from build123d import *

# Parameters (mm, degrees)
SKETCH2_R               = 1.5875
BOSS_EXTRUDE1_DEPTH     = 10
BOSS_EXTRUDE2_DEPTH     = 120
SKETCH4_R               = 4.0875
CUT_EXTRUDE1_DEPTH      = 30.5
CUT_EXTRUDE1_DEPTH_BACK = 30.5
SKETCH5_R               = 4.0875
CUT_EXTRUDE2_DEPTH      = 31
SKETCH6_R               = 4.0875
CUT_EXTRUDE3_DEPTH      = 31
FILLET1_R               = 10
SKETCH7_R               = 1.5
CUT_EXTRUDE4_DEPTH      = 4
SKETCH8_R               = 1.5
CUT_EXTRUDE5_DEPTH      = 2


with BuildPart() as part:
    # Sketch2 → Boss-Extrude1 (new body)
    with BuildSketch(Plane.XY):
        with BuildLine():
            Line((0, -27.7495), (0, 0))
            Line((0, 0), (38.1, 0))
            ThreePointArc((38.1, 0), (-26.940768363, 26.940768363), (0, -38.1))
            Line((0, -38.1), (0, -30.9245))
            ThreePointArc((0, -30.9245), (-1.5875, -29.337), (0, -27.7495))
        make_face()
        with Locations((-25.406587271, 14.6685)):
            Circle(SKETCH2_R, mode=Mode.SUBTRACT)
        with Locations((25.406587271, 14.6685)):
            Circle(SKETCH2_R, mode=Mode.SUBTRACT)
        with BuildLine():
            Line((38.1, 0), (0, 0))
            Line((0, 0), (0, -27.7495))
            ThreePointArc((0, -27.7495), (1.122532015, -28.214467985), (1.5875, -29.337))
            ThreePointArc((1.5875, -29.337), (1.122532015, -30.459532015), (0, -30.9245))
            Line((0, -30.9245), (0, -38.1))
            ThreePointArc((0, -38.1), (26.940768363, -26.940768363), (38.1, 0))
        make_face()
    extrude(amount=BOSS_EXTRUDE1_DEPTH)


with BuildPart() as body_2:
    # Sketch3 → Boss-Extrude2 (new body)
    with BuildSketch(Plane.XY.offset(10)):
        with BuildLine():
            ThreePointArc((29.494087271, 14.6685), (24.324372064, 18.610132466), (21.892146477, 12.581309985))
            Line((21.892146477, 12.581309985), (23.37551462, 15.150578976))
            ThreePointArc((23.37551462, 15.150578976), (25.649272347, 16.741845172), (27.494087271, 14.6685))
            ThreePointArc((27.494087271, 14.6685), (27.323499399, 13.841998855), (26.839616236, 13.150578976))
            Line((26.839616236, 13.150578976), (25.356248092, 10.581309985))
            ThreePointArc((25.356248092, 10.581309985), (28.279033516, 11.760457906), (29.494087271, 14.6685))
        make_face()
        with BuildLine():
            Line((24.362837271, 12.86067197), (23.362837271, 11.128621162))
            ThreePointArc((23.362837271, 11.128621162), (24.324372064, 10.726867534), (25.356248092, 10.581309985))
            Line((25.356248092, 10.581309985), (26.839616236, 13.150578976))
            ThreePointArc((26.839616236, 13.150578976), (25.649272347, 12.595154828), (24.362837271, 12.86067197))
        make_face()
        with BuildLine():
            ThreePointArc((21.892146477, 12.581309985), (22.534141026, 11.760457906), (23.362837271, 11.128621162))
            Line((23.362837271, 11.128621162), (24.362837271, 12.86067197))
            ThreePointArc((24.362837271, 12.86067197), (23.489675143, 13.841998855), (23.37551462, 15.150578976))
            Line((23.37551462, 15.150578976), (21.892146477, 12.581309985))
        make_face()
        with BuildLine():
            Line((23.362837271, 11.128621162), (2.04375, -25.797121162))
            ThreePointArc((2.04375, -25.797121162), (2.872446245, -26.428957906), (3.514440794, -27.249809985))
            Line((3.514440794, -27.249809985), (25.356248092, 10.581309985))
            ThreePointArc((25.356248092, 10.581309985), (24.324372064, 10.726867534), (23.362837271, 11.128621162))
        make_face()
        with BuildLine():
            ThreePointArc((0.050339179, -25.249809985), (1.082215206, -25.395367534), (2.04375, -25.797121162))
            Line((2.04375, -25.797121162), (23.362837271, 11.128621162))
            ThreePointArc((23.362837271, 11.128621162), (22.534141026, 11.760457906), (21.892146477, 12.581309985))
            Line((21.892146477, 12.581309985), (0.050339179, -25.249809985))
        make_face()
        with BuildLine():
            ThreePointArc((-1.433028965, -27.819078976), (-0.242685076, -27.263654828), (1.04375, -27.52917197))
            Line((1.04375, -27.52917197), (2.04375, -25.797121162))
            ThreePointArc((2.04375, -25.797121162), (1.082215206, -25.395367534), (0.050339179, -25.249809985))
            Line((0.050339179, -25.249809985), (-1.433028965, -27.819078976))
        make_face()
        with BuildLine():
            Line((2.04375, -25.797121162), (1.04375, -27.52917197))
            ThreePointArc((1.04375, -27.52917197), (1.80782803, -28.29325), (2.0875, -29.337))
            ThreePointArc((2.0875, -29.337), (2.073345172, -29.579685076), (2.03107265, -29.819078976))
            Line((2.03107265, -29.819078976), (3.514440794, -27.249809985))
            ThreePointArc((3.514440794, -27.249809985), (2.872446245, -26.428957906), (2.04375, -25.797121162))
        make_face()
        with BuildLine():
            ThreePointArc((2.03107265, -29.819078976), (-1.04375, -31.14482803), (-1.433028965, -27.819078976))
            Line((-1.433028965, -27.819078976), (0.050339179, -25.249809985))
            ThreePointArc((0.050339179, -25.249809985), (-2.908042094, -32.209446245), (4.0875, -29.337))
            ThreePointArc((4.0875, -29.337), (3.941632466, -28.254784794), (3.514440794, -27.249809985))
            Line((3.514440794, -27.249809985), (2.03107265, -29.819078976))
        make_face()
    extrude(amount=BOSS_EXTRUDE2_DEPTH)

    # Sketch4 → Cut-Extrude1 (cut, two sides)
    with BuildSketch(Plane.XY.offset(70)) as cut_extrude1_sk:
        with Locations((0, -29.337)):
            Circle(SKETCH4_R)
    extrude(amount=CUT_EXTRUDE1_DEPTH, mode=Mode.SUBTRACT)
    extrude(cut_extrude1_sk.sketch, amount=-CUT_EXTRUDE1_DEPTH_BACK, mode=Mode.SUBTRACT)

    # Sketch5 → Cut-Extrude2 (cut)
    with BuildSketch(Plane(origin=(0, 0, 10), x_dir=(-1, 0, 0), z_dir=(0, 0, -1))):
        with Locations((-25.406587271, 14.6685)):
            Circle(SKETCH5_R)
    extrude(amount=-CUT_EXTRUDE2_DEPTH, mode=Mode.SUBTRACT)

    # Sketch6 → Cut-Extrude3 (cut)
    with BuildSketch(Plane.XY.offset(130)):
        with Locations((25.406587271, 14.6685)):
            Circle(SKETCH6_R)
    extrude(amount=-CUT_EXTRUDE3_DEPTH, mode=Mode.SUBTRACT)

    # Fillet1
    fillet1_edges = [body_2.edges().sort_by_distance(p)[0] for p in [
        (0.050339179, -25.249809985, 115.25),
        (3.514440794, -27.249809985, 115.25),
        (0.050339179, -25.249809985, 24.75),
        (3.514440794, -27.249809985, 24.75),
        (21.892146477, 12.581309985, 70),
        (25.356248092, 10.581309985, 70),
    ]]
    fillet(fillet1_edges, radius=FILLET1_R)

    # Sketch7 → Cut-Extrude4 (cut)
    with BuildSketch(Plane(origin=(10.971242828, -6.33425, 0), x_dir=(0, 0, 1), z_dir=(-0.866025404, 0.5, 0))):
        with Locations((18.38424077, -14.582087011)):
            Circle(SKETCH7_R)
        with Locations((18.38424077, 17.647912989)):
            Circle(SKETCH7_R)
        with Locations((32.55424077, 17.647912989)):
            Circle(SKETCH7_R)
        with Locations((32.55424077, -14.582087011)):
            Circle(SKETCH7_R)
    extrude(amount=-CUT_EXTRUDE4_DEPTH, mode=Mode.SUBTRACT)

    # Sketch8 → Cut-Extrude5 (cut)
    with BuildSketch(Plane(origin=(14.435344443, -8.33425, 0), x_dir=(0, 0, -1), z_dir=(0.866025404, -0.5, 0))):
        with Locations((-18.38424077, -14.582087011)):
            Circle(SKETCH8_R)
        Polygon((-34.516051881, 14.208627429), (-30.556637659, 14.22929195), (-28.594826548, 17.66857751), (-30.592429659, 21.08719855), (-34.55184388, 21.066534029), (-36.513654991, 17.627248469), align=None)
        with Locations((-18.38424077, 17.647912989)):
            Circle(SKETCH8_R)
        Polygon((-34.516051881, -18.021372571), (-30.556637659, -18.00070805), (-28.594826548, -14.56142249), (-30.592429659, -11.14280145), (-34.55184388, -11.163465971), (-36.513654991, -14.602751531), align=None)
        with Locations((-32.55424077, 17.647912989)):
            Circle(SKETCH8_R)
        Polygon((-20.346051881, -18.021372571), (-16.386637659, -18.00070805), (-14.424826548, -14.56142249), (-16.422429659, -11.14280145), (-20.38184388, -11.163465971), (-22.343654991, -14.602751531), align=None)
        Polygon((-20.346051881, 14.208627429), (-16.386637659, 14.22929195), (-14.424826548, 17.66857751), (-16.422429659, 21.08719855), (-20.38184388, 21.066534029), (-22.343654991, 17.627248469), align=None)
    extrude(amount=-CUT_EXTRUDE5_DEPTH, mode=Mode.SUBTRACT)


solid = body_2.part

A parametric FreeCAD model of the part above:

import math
import FreeCAD as App
import Part
import Sketcher
Q = App.Units.Quantity


def edges_at(feature, points):
    """Names of the edges that pass closest to the given points."""
    edges = feature.Shape.Edges
    near = lambda p: min(range(len(edges)), key=lambda i: edges[i].distToShape(Part.Vertex(*p))[0])
    return sorted({f"Edge{near(p) + 1}" for p in points})

doc = App.newDocument("Part")
body = doc.addObject("PartDesign::Body", "Body")

sketch1 = doc.addObject("Sketcher::SketchObject", "Sketch")
body.addObject(sketch1)
sketch1.AttachmentSupport = (doc.XY_Plane, [""])
sketch1.MapMode = "FlatFace"
sketch1.addGeometry([
    Part.ArcOfCircle(Part.Circle(App.Vector(0, 0, 0), App.Vector(0, 0, 1), 38.1), math.radians(0), math.radians(270)),
    Part.ArcOfCircle(Part.Circle(App.Vector(0, 0, 0), App.Vector(0, 0, 1), 38.1), math.radians(-90), math.radians(0)),
    Part.ArcOfCircle(Part.Circle(App.Vector(0, -29.3, 0), App.Vector(0, 0, 1), 1.6), math.radians(90), math.radians(270)),
    Part.ArcOfCircle(Part.Circle(App.Vector(0, -29.3, 0), App.Vector(0, 0, 1), 1.6), math.radians(0), math.radians(90)),
    Part.ArcOfCircle(Part.Circle(App.Vector(0, -29.3, 0), App.Vector(0, 0, 1), 1.6), math.radians(-90), math.radians(0)),
    Part.Circle(App.Vector(-25.4, 14.7, 0), App.Vector(0, 0, 1), 1.6),
    Part.Circle(App.Vector(25.4, 14.7, 0), App.Vector(0, 0, 1), 1.6),
], False)
sketch1.addConstraint([
    Sketcher.Constraint("Tangent", 0, 1, 1, 2),
    Sketcher.Constraint("Coincident", 1, 1, 0, 2),
    Sketcher.Constraint("Tangent", 2, 1, 3, 2),
    Sketcher.Constraint("Tangent", 3, 1, 4, 2),
    Sketcher.Constraint("Tangent", 4, 1, 2, 2),
    Sketcher.Constraint("Coincident", 0, 3, -1, 1),
    Sketcher.Constraint("Equal", 4, 5),
    Sketcher.Constraint("Equal", 5, 6),
    Sketcher.Constraint("Symmetric", 5, 3, 6, 3, -2),
    Sketcher.Constraint("PointOnObject", 2, 3, -2),
    Sketcher.Constraint("PointOnObject", 0, 1, -1),
    Sketcher.Constraint("PointOnObject", 1, 1, -2),
    Sketcher.Constraint("PointOnObject", 2, 1, -2),
    Sketcher.Constraint("PointOnObject", 4, 1, -2),
    Sketcher.Constraint("Horizontal", 4, 3, 3, 1),
    Sketcher.Constraint("Radius", 0, Q("38.1 mm")),
    Sketcher.Constraint("Diameter", 5, Q("3.175 mm")),
    Sketcher.Constraint("DistanceY", 2, 3, -1, 1, Q("29.337 mm")),
    Sketcher.Constraint("DistanceY", -1, 1, 5, 3, Q("14.6685 mm")),
    Sketcher.Constraint("DistanceX", 5, 3, -1, 1, Q("25.406587 mm")),
])
pad1 = doc.addObject("PartDesign::Pad", "Pad")
body.addObject(pad1)
pad1.Profile = sketch1
pad1.Length = 10
body2 = doc.addObject("PartDesign::Body", "Body001")

sketch2 = doc.addObject("Sketcher::SketchObject", "Sketch001")
body2.addObject(sketch2)
sketch2.AttachmentSupport = (doc.getObject("XY_Plane001"), [""])
sketch2.MapMode = "FlatFace"
sketch2.AttachmentOffset = App.Placement(App.Vector(0, 0, 10), App.Rotation())
sketch2.addGeometry([
    Part.ArcOfCircle(Part.Circle(App.Vector(25.41, 14.67, 0), App.Vector(0, 0, 1), 4.09), math.radians(0), math.radians(211)),
    Part.LineSegment(App.Vector(21.89, 12.58, 0), App.Vector(0.05, -25.25, 0)),
    Part.ArcOfCircle(Part.Circle(App.Vector(0, -29.34, 0), App.Vector(0, 0, 1), 4.09), math.radians(89), math.radians(360)),
    Part.ArcOfCircle(Part.Circle(App.Vector(0, -29.34, 0), App.Vector(0, 0, 1), 4.09), math.radians(0), math.radians(31)),
    Part.LineSegment(App.Vector(3.51, -27.25, 0), App.Vector(25.36, 10.58, 0)),
    Part.ArcOfCircle(Part.Circle(App.Vector(25.41, 14.67, 0), App.Vector(0, 0, 1), 4.09), math.radians(-91), math.radians(0)),
    Part.ArcOfCircle(Part.Circle(App.Vector(0, -29.34, 0), App.Vector(0, 0, 1), 2.09), math.radians(60), math.radians(133)),
    Part.ArcOfCircle(Part.Circle(App.Vector(0, -29.34, 0), App.Vector(0, 0, 1), 2.09), math.radians(0), math.radians(60)),
    Part.ArcOfCircle(Part.Circle(App.Vector(0, -29.34, 0), App.Vector(0, 0, 1), 2.09), math.radians(-13.35), math.radians(0)),
    Part.ArcOfCircle(Part.Circle(App.Vector(0, -29.34, 0), App.Vector(0, 0, 1), 2.09), math.radians(133), math.radians(347)),
    Part.ArcOfCircle(Part.Circle(App.Vector(25.41, 14.67, 0), App.Vector(0, 0, 1), 2.09), math.radians(0), math.radians(167)),
    Part.ArcOfCircle(Part.Circle(App.Vector(25.41, 14.67, 0), App.Vector(0, 0, 1), 2.09), math.radians(-47), math.radians(0)),
    Part.ArcOfCircle(Part.Circle(App.Vector(25.41, 14.67, 0), App.Vector(0, 0, 1), 2.09), math.radians(-120), math.radians(-47)),
    Part.ArcOfCircle(Part.Circle(App.Vector(25.41, 14.67, 0), App.Vector(0, 0, 1), 2.09), math.radians(167), math.radians(240)),
], False)
sketch2.addConstraint([
    Sketcher.Constraint("Coincident", 0, 2, 1, 1),
    Sketcher.Constraint("Coincident", 1, 2, 2, 1),
    Sketcher.Constraint("Tangent", 2, 2, 3, 1),
    Sketcher.Constraint("Coincident", 3, 2, 4, 1),
    Sketcher.Constraint("Coincident", 4, 2, 5, 1),
    Sketcher.Constraint("Tangent", 5, 2, 0, 1),
    Sketcher.Constraint("Tangent", 6, 1, 7, 2),
    Sketcher.Constraint("Tangent", 7, 1, 8, 2),
    Sketcher.Constraint("Tangent", 8, 1, 9, 2),
    Sketcher.Constraint("Tangent", 9, 1, 6, 2),
    Sketcher.Constraint("Tangent", 10, 1, 11, 2),
    Sketcher.Constraint("Tangent", 11, 1, 12, 2),
    Sketcher.Constraint("Tangent", 12, 1, 13, 2),
    Sketcher.Constraint("Tangent", 13, 1, 10, 2),
    Sketcher.Constraint("Coincident", 6, 3, 2, 3),
    Sketcher.Constraint("Coincident", 10, 3, 0, 3),
    Sketcher.Constraint("Equal", 0, 2),
    Sketcher.Constraint("Equal", 2, 3),
    Sketcher.Constraint("Equal", 3, 5),
    Sketcher.Constraint("Equal", 6, 7),
    Sketcher.Constraint("Equal", 9, 10),
    Sketcher.Constraint("Equal", 10, 11),
    Sketcher.Constraint("PointOnObject", 2, 3, -2),
    Sketcher.Constraint("Parallel", 1, 4),
    Sketcher.Constraint("Horizontal", 9, 3, 2, 2),
    Sketcher.Constraint("Horizontal", 13, 3, 5, 2),
    Sketcher.Constraint("Horizontal", 2, 2, 7, 1),
    Sketcher.Constraint("Horizontal", 5, 2, 10, 1),
    Sketcher.Constraint("Equal", 1, 4),
    Sketcher.Constraint("Angle", 1, Q("-120 deg")),
    Sketcher.Constraint("DistanceY", 3, 2, 1, 2, Q("2 mm")),
    Sketcher.Constraint("DistanceX", 7, 1, 2, 2, Q("2 mm")),
    Sketcher.Constraint("Radius", 0, Q("4.0875 mm")),
    Sketcher.Constraint("DistanceY", 2, 3, -1, 1, Q("29.337 mm")),
    Sketcher.Constraint("DistanceY", -1, 1, 0, 3, Q("14.6685 mm")),
    Sketcher.Constraint("DistanceX", 1, 2, 3, 2, Q("3.464102 mm")),
    Sketcher.Constraint("DistanceX", -1, 1, 6, 1, Q("1.04375 mm")),
    Sketcher.Constraint("DistanceY", 8, 1, -1, 1, Q("29.819079 mm")),
    Sketcher.Constraint("DistanceX", 9, 1, -1, 1, Q("1.433029 mm")),
    Sketcher.Constraint("DistanceY", -1, 1, 11, 1, Q("13.150579 mm")),
    Sketcher.Constraint("DistanceY", -1, 1, 12, 1, Q("12.860672 mm")),
    Sketcher.Constraint("DistanceY", -1, 1, 13, 1, Q("15.150579 mm")),
])
pad2 = doc.addObject("PartDesign::Pad", "Pad001")
body2.addObject(pad2)
pad2.Profile = sketch2
pad2.Length = 120

sketch3 = doc.addObject("Sketcher::SketchObject", "Sketch002")
body2.addObject(sketch3)
sketch3.AttachmentSupport = (doc.getObject("XY_Plane001"), [""])
sketch3.MapMode = "FlatFace"
sketch3.AttachmentOffset = App.Placement(App.Vector(0, 0, 70), App.Rotation())
sketch3.addGeometry(Part.Circle(App.Vector(0, -29.3, 0), App.Vector(0, 0, 1), 4.1), False)
sketch3.addConstraint([
    Sketcher.Constraint("PointOnObject", 0, 3, -2),
    Sketcher.Constraint("Diameter", 0, Q("8.175 mm")),
    Sketcher.Constraint("DistanceY", 0, 3, -1, 1, Q("29.337 mm")),
])
pocket1 = doc.addObject("PartDesign::Pocket", "Pocket")
body2.addObject(pocket1)
pocket1.Profile = sketch3
pocket1.Type = "TwoLengths"
pocket1.Length = 30.5
pocket1.Length2 = 30.5
pocket1.Reversed = True

sketch4 = doc.addObject("Sketcher::SketchObject", "Sketch003")
body2.addObject(sketch4)
sketch4.AttachmentSupport = (doc.getObject("XY_Plane001"), [""])
sketch4.MapMode = "FlatFace"
sketch4.AttachmentOffset = App.Placement(App.Vector(0, 0, 10), App.Rotation())
sketch4.addGeometry(Part.Circle(App.Vector(25.4, 14.7, 0), App.Vector(0, 0, 1), 4.1), False)
sketch4.addConstraint([
    Sketcher.Constraint("Diameter", 0, Q("8.175 mm")),
    Sketcher.Constraint("DistanceY", -1, 1, 0, 3, Q("14.6685 mm")),
    Sketcher.Constraint("DistanceX", -1, 1, 0, 3, Q("25.406587 mm")),
])
pocket2 = doc.addObject("PartDesign::Pocket", "Pocket001")
body2.addObject(pocket2)
pocket2.Profile = sketch4
pocket2.Length = 31
pocket2.Reversed = True

sketch5 = doc.addObject("Sketcher::SketchObject", "Sketch004")
body2.addObject(sketch5)
sketch5.AttachmentSupport = (doc.getObject("XY_Plane001"), [""])
sketch5.MapMode = "FlatFace"
sketch5.AttachmentOffset = App.Placement(App.Vector(0, 0, 130), App.Rotation())
sketch5.addGeometry(Part.Circle(App.Vector(25.4, 14.7, 0), App.Vector(0, 0, 1), 4.1), False)
sketch5.addConstraint([
    Sketcher.Constraint("Diameter", 0, Q("8.175 mm")),
    Sketcher.Constraint("DistanceY", -1, 1, 0, 3, Q("14.6685 mm")),
    Sketcher.Constraint("DistanceX", -1, 1, 0, 3, Q("25.406587 mm")),
])
pocket3 = doc.addObject("PartDesign::Pocket", "Pocket002")
body2.addObject(pocket3)
pocket3.Profile = sketch5
pocket3.Length = 31
doc.recompute()

fillet = doc.addObject("PartDesign::Fillet", "Fillet")
body2.addObject(fillet)
fillet.Base = (pocket3, edges_at(pocket3, [
    (0.05, -25.25, 115.25),
    (3.514, -27.25, 115.25),
    (0.05, -25.25, 24.75),
    (3.514, -27.25, 24.75),
    (21.892, 12.581, 70),
    (25.356, 10.581, 70),
]))
fillet.Radius = 10

sketch6 = doc.addObject("Sketcher::SketchObject", "Sketch005")
body2.addObject(sketch6)
sketch6.Placement = App.Placement(App.Vector(10.971243, -6.33425, 0), App.Rotation(App.Vector(0, 0, 1), App.Vector(0.5, 0.866025404, 0), App.Vector(-0.866025404, 0.5, 0), "ZXY"))
sketch6.addGeometry([
    Part.Circle(App.Vector(18.4, -14.6, 0), App.Vector(0, 0, 1), 1.5),
    Part.Circle(App.Vector(18.4, 17.6, 0), App.Vector(0, 0, 1), 1.5),
    Part.Circle(App.Vector(32.6, 17.6, 0), App.Vector(0, 0, 1), 1.5),
    Part.Circle(App.Vector(32.6, -14.6, 0), App.Vector(0, 0, 1), 1.5),
], False)
sketch6.addConstraint([
    Sketcher.Constraint("Equal", 0, 1),
    Sketcher.Constraint("Equal", 1, 2),
    Sketcher.Constraint("Equal", 2, 3),
    Sketcher.Constraint("Horizontal", 1, 3, 2, 3),
    Sketcher.Constraint("Horizontal", 0, 3, 3, 3),
    Sketcher.Constraint("Vertical", 0, 3, 1, 3),
    Sketcher.Constraint("Vertical", 2, 3, 3, 3),
    Sketcher.Constraint("Diameter", 0, Q("3 mm")),
    Sketcher.Constraint("DistanceY", 0, 3, 1, 3, Q("32.23 mm")),
    Sketcher.Constraint("DistanceX", 1, 3, 2, 3, Q("14.17 mm")),
    Sketcher.Constraint("DistanceX", -1, 1, 0, 3, Q("18.384241 mm")),
    Sketcher.Constraint("DistanceY", 0, 3, -1, 1, Q("14.582087 mm")),
])
pocket4 = doc.addObject("PartDesign::Pocket", "Pocket003")
body2.addObject(pocket4)
pocket4.Profile = sketch6
pocket4.Length = 4

sketch7 = doc.addObject("Sketcher::SketchObject", "Sketch006")
body2.addObject(sketch7)
sketch7.Placement = App.Placement(App.Vector(14.435344, -8.33425, 0), App.Rotation(App.Vector(0, 0, -1), App.Vector(0.5, 0.866025404, 0), App.Vector(0.866025404, -0.5, 0), "ZXY"))
sketch7.addGeometry([
    Part.LineSegment(App.Vector(-20.346052, -18.021373, 0), App.Vector(-16.386638, -18.000708, 0)),
    Part.LineSegment(App.Vector(-16.386638, -18.000708, 0), App.Vector(-14.424827, -14.561422, 0)),
    Part.LineSegment(App.Vector(-14.424827, -14.561422, 0), App.Vector(-16.42243, -11.142801, 0)),
    Part.LineSegment(App.Vector(-16.42243, -11.142801, 0), App.Vector(-20.381844, -11.163466, 0)),
    Part.LineSegment(App.Vector(-20.381844, -11.163466, 0), App.Vector(-22.343655, -14.602752, 0)),
    Part.LineSegment(App.Vector(-22.343655, -14.602752, 0), App.Vector(-20.346052, -18.021373, 0)),
    Part.LineSegment(App.Vector(-34.516052, 14.208627, 0), App.Vector(-30.556638, 14.229292, 0)),
    Part.LineSegment(App.Vector(-30.556638, 14.229292, 0), App.Vector(-28.594827, 17.668578, 0)),
    Part.LineSegment(App.Vector(-28.594827, 17.668578, 0), App.Vector(-30.59243, 21.087199, 0)),
    Part.LineSegment(App.Vector(-30.59243, 21.087199, 0), App.Vector(-34.551844, 21.066534, 0)),
    Part.LineSegment(App.Vector(-34.551844, 21.066534, 0), App.Vector(-36.513655, 17.627248, 0)),
    Part.LineSegment(App.Vector(-36.513655, 17.627248, 0), App.Vector(-34.516052, 14.208627, 0)),
    Part.LineSegment(App.Vector(-20.346052, 14.208627, 0), App.Vector(-16.386638, 14.229292, 0)),
    Part.LineSegment(App.Vector(-16.386638, 14.229292, 0), App.Vector(-14.424827, 17.668578, 0)),
    Part.LineSegment(App.Vector(-14.424827, 17.668578, 0), App.Vector(-16.42243, 21.087199, 0)),
    Part.LineSegment(App.Vector(-16.42243, 21.087199, 0), App.Vector(-20.381844, 21.066534, 0)),
    Part.LineSegment(App.Vector(-20.381844, 21.066534, 0), App.Vector(-22.343655, 17.627248, 0)),
    Part.LineSegment(App.Vector(-22.343655, 17.627248, 0), App.Vector(-20.346052, 14.208627, 0)),
    Part.LineSegment(App.Vector(-34.516052, -18.021373, 0), App.Vector(-30.556638, -18.000708, 0)),
    Part.LineSegment(App.Vector(-30.556638, -18.000708, 0), App.Vector(-28.594827, -14.561422, 0)),
    Part.LineSegment(App.Vector(-28.594827, -14.561422, 0), App.Vector(-30.59243, -11.142801, 0)),
    Part.LineSegment(App.Vector(-30.59243, -11.142801, 0), App.Vector(-34.551844, -11.163466, 0)),
    Part.LineSegment(App.Vector(-34.551844, -11.163466, 0), App.Vector(-36.513655, -14.602752, 0)),
    Part.LineSegment(App.Vector(-36.513655, -14.602752, 0), App.Vector(-34.516052, -18.021373, 0)),
], False)
sketch7.addConstraint([
    Sketcher.Constraint("Coincident", 0, 2, 1, 1),
    Sketcher.Constraint("Coincident", 1, 2, 2, 1),
    Sketcher.Constraint("Coincident", 2, 2, 3, 1),
    Sketcher.Constraint("Coincident", 3, 2, 4, 1),
    Sketcher.Constraint("Coincident", 4, 2, 5, 1),
    Sketcher.Constraint("Coincident", 5, 2, 0, 1),
    Sketcher.Constraint("Coincident", 6, 2, 7, 1),
    Sketcher.Constraint("Coincident", 7, 2, 8, 1),
    Sketcher.Constraint("Coincident", 8, 2, 9, 1),
    Sketcher.Constraint("Coincident", 9, 2, 10, 1),
    Sketcher.Constraint("Coincident", 10, 2, 11, 1),
    Sketcher.Constraint("Coincident", 11, 2, 6, 1),
    Sketcher.Constraint("Coincident", 12, 2, 13, 1),
    Sketcher.Constraint("Coincident", 13, 2, 14, 1),
    Sketcher.Constraint("Coincident", 14, 2, 15, 1),
    Sketcher.Constraint("Coincident", 15, 2, 16, 1),
    Sketcher.Constraint("Coincident", 16, 2, 17, 1),
    Sketcher.Constraint("Coincident", 17, 2, 12, 1),
    Sketcher.Constraint("Coincident", 18, 2, 19, 1),
    Sketcher.Constraint("Coincident", 19, 2, 20, 1),
    Sketcher.Constraint("Coincident", 20, 2, 21, 1),
    Sketcher.Constraint("Coincident", 21, 2, 22, 1),
    Sketcher.Constraint("Coincident", 22, 2, 23, 1),
    Sketcher.Constraint("Coincident", 23, 2, 18, 1),
    Sketcher.Constraint("Parallel", 0, 3),
    Sketcher.Constraint("Parallel", 1, 4),
    Sketcher.Constraint("Parallel", 2, 5),
    Sketcher.Constraint("Parallel", 3, 6),
    Sketcher.Constraint("Parallel", 4, 7),
    Sketcher.Constraint("Parallel", 5, 8),
    Sketcher.Constraint("Parallel", 6, 9),
    Sketcher.Constraint("Parallel", 7, 10),
    Sketcher.Constraint("Parallel", 8, 11),
    Sketcher.Constraint("Parallel", 9, 12),
    Sketcher.Constraint("Parallel", 10, 13),
    Sketcher.Constraint("Parallel", 11, 14),
    Sketcher.Constraint("Parallel", 12, 15),
    Sketcher.Constraint("Parallel", 13, 16),
    Sketcher.Constraint("Parallel", 14, 17),
    Sketcher.Constraint("Parallel", 15, 18),
    Sketcher.Constraint("Parallel", 16, 19),
    Sketcher.Constraint("Parallel", 17, 20),
    Sketcher.Constraint("Parallel", 18, 21),
    Sketcher.Constraint("Parallel", 19, 22),
    Sketcher.Constraint("Parallel", 20, 23),
    Sketcher.Constraint("Horizontal", 6, 2, 12, 2),
    Sketcher.Constraint("Horizontal", 7, 2, 13, 2),
    Sketcher.Constraint("Horizontal", 8, 2, 14, 2),
    Sketcher.Constraint("Horizontal", 9, 2, 15, 2),
    Sketcher.Constraint("Horizontal", 10, 2, 16, 2),
    Sketcher.Constraint("Horizontal", 0, 2, 18, 2),
    Sketcher.Constraint("Horizontal", 1, 2, 19, 2),
    Sketcher.Constraint("Horizontal", 2, 2, 20, 2),
    Sketcher.Constraint("Horizontal", 3, 2, 21, 2),
    Sketcher.Constraint("Horizontal", 4, 2, 22, 2),
    Sketcher.Constraint("Vertical", 0, 2, 12, 2),
    Sketcher.Constraint("Vertical", 1, 2, 13, 2),
    Sketcher.Constraint("Vertical", 2, 2, 14, 2),
    Sketcher.Constraint("Vertical", 3, 2, 15, 2),
    Sketcher.Constraint("Vertical", 4, 2, 16, 2),
    Sketcher.Constraint("Vertical", 6, 2, 18, 2),
    Sketcher.Constraint("Equal", 0, 1),
    Sketcher.Constraint("Equal", 1, 2),
    Sketcher.Constraint("Equal", 2, 3),
    Sketcher.Constraint("DistanceX", 7, 2, 1, 2, Q("14.17 mm")),
    Sketcher.Constraint("DistanceY", 1, 2, 7, 2, Q("32.23 mm")),
    Sketcher.Constraint("DistanceY", 2, 2, -1, 1, Q("11.142801 mm")),
    Sketcher.Constraint("Distance", 0, Q("3.959468 mm")),
    Sketcher.Constraint("DistanceY", 0, 2, -1, 1, Q("18.000708 mm")),
    Sketcher.Constraint("DistanceX", 2, 2, -1, 1, Q("16.42243 mm")),
    Sketcher.Constraint("DistanceY", 4, 2, -1, 1, Q("14.602752 mm")),
    Sketcher.Constraint("DistanceX", 5, 2, -1, 1, Q("20.346052 mm")),
])
pocket5 = doc.addObject("PartDesign::Pocket", "Pocket004")
body2.addObject(pocket5)
pocket5.Profile = sketch7
pocket5.Length = 2
body.Visibility = False

doc.recompute()
